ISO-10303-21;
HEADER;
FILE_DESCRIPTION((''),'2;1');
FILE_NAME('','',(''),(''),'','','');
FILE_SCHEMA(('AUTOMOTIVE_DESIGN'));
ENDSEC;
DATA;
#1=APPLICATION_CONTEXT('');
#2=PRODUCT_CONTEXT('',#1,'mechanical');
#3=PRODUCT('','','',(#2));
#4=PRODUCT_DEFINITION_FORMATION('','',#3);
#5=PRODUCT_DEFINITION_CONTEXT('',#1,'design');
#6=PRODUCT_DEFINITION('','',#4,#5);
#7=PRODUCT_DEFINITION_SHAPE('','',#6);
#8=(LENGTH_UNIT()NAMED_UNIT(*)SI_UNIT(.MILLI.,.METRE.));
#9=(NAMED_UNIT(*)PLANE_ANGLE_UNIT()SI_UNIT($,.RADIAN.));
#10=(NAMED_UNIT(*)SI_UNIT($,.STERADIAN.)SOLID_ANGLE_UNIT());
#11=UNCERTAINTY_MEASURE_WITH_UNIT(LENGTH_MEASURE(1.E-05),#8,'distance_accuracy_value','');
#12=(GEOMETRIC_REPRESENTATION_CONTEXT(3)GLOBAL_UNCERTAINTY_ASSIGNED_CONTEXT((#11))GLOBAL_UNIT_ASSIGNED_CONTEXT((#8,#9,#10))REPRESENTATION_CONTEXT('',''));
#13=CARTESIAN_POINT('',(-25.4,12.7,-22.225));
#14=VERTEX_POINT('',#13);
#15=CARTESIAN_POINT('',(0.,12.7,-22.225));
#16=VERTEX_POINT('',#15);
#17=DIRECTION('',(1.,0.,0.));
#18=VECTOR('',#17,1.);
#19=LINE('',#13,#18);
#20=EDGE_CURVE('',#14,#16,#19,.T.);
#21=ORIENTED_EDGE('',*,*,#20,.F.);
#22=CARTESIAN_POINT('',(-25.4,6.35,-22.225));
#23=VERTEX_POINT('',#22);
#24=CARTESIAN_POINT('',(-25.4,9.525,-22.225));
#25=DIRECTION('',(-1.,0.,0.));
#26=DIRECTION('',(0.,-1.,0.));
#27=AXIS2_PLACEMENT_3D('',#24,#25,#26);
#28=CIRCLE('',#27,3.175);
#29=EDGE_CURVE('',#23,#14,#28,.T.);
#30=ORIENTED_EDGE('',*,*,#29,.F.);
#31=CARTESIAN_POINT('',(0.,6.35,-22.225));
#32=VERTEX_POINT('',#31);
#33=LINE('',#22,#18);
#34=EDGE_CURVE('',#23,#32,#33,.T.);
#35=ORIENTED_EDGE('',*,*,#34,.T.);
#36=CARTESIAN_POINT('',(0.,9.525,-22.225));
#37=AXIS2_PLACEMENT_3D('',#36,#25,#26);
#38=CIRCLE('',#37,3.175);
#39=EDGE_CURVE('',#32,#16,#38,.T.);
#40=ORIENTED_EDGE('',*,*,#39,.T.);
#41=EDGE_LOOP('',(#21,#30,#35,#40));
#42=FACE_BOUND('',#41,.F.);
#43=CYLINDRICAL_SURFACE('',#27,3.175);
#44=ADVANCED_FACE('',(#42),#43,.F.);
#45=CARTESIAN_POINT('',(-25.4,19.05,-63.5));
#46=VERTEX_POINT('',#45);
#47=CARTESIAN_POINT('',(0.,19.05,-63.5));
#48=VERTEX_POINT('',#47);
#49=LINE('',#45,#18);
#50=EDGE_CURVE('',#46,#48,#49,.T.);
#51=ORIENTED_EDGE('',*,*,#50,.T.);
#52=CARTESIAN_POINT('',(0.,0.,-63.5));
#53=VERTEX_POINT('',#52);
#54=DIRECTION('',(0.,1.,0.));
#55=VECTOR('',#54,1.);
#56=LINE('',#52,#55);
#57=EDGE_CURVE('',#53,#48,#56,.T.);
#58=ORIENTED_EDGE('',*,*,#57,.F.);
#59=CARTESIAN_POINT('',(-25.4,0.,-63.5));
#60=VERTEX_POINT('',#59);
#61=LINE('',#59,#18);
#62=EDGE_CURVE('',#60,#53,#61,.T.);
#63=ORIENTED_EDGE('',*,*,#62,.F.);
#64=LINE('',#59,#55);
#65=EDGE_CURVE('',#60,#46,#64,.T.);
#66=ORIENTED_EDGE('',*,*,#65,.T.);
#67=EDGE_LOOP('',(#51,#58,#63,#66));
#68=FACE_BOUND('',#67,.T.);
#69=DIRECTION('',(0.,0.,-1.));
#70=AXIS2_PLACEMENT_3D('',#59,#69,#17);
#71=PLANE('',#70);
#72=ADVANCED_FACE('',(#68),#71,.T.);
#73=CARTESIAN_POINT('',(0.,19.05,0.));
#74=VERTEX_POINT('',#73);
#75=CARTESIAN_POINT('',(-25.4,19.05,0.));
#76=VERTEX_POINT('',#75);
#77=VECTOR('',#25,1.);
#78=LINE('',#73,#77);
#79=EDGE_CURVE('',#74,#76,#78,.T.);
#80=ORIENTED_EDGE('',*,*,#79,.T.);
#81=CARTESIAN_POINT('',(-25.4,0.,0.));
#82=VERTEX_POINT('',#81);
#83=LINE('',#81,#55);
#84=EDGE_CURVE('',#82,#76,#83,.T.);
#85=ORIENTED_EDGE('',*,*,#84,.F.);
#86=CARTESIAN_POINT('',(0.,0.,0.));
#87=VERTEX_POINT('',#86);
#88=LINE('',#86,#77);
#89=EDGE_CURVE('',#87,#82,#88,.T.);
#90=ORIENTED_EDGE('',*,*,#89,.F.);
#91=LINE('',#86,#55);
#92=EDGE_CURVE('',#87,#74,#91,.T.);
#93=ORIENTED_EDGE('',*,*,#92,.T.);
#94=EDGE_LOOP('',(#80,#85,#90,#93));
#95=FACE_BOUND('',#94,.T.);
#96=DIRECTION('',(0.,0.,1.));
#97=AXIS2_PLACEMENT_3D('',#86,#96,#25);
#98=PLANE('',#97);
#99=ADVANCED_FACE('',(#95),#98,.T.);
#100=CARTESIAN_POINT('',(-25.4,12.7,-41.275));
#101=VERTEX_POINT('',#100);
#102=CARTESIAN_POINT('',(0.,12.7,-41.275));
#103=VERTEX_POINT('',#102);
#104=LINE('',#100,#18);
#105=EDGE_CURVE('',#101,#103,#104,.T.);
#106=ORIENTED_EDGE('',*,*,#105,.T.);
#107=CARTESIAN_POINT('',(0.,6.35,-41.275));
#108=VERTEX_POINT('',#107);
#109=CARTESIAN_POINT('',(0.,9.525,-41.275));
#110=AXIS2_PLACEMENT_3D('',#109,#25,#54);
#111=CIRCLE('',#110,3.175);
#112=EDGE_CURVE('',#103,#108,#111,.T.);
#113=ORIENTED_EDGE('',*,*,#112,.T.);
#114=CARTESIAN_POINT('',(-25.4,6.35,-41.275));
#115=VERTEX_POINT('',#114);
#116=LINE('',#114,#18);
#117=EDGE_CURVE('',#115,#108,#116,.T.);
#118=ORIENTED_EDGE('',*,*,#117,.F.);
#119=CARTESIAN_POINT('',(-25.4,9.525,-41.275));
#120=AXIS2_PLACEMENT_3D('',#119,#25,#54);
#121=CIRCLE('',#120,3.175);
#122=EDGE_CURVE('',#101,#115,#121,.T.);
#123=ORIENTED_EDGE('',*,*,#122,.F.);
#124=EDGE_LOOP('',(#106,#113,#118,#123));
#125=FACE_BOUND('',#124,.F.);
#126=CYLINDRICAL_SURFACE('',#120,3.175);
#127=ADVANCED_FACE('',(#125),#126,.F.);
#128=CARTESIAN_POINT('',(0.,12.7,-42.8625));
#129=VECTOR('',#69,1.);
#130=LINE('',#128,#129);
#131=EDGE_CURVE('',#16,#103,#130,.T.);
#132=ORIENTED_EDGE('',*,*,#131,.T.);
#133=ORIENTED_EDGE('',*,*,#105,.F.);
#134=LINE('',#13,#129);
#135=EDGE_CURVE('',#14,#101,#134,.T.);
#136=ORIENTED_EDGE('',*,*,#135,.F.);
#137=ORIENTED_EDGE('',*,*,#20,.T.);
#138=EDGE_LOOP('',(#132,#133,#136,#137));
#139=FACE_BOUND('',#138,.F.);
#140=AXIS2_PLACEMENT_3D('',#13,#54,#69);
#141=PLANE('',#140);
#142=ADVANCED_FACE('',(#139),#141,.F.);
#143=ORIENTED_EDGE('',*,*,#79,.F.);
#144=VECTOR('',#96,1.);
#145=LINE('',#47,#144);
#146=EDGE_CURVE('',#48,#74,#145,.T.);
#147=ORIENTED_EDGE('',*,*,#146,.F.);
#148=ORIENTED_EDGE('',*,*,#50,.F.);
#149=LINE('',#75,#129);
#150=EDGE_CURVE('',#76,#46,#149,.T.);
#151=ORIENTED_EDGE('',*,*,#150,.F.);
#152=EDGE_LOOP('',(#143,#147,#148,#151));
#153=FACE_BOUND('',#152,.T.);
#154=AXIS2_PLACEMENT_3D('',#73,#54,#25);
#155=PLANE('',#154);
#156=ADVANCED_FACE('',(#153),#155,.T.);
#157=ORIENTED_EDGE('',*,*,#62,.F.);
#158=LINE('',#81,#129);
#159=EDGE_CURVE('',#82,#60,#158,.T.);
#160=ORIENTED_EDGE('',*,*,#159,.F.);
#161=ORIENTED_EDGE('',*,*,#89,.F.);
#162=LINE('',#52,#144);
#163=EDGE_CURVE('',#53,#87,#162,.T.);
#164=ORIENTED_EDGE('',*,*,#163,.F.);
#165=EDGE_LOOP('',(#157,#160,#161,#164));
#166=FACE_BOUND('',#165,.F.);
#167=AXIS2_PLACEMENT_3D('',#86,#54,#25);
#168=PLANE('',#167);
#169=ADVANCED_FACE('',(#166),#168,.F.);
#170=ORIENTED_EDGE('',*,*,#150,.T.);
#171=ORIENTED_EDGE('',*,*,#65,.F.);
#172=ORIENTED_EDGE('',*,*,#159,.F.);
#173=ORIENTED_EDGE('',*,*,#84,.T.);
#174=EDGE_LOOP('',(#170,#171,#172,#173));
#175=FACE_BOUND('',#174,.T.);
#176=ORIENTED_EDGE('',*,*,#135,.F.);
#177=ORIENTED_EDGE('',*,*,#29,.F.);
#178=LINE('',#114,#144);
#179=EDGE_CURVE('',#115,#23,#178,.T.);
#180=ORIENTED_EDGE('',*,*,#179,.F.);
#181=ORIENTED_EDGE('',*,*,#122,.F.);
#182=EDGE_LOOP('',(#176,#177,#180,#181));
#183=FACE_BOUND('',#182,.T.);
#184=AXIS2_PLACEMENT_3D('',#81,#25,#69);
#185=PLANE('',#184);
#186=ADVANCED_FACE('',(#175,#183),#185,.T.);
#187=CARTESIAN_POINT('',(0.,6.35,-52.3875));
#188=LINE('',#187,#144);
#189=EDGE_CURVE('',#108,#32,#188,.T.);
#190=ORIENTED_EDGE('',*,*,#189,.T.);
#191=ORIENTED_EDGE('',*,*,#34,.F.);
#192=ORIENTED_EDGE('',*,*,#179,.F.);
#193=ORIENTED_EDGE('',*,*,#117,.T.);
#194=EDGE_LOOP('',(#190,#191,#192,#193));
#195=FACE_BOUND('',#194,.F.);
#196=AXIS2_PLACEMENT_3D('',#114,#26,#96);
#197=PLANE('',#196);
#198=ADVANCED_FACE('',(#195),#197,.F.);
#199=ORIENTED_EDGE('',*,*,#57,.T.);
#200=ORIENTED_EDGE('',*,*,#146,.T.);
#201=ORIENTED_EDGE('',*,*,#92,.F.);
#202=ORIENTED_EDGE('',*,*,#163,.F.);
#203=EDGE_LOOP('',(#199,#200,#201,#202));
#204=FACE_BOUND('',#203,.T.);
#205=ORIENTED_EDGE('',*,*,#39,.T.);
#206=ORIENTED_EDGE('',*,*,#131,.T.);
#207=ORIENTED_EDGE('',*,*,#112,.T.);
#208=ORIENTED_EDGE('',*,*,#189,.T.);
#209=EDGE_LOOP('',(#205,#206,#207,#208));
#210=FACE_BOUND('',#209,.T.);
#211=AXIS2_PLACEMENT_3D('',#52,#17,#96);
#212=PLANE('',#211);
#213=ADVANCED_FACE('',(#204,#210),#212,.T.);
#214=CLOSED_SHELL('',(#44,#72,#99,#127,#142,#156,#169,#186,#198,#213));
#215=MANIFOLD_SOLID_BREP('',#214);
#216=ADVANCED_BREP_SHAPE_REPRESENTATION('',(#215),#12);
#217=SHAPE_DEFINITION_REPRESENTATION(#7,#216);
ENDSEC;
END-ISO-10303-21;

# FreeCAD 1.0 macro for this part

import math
import FreeCAD as App
import Part
import Sketcher
from FreeCAD import Vector
Q = App.Units.Quantity

doc = App.newDocument("Part")
body = doc.addObject("PartDesign::Body", "Body")

sketch1 = doc.addObject("Sketcher::SketchObject", "Sketch")
body.addObject(sketch1)
sketch1.AttachmentSupport = (doc.XZ_Plane, [""])
sketch1.MapMode = "FlatFace"
sketch1.addGeometry(Part.LineSegment(Vector(-25, 0, 0), Vector(0, 0, 0)), False)
sketch1.addGeometry(Part.LineSegment(Vector(0, 0, 0), Vector(0, -64, 0)), False)
sketch1.addGeometry(Part.LineSegment(Vector(0, -64, 0), Vector(-25, -64, 0)), False)
sketch1.addGeometry(Part.LineSegment(Vector(-25, -64, 0), Vector(-25, 0, 0)), False)
sketch1.addConstraint(Sketcher.Constraint("Coincident", 0, 2, 1, 1))
sketch1.addConstraint(Sketcher.Constraint("Coincident", 1, 2, 2, 1))
sketch1.addConstraint(Sketcher.Constraint("Coincident", 2, 2, 3, 1))
sketch1.addConstraint(Sketcher.Constraint("Coincident", 3, 2, 0, 1))
sketch1.addConstraint(Sketcher.Constraint("Horizontal", 0))
sketch1.addConstraint(Sketcher.Constraint("Vertical", 1))
sketch1.addConstraint(Sketcher.Constraint("Horizontal", 2))
sketch1.addConstraint(Sketcher.Constraint("Vertical", 3))
sketch1.addConstraint(Sketcher.Constraint("Coincident", 0, 2, -1, 1))
sketch1.addConstraint(Sketcher.Constraint("DistanceX", 0, 1, 0, 2, Q("1 in")))
sketch1.addConstraint(Sketcher.Constraint("DistanceY", 1, 2, 1, 1, Q("2.5 in")))
pad1 = doc.addObject("PartDesign::Pad", "Pad")
body.addObject(pad1)
pad1.Profile = sketch1
pad1.Length = Q("0.75 in")
pad1.Reversed = True

sketch2 = doc.addObject("Sketcher::SketchObject", "Sketch001")
body.addObject(sketch2)
sketch2.AttachmentSupport = (doc.YZ_Plane, [""])
sketch2.MapMode = "FlatFace"
sketch2.AttachmentOffset = App.Placement(Vector(0, 0, -1 * 25.4), App.Rotation())
sketch2.addGeometry(Part.ArcOfCircle(Part.Circle(Vector(9.5, -22.2, 0), Vector(0, 0, 1), 3.2), math.radians(0), math.radians(180)), False)
sketch2.addGeometry(Part.LineSegment(Vector(12.7, -22.2, 0), Vector(12.7, -41.3, 0)), False)
sketch2.addGeometry(Part.ArcOfCircle(Part.Circle(Vector(9.5, -41.3, 0), Vector(0, 0, 1), 3.2), math.radians(180), math.radians(360)), False)
sketch2.addGeometry(Part.LineSegment(Vector(6.3, -41.3, 0), Vector(6.3, -22.2, 0)), False)
sketch2.addConstraint(Sketcher.Constraint("Tangent", 0, 1, 1, 1))
sketch2.addConstraint(Sketcher.Constraint("Tangent", 1, 2, 2, 2))
sketch2.addConstraint(Sketcher.Constraint("Tangent", 2, 1, 3, 1))
sketch2.addConstraint(Sketcher.Constraint("Tangent", 3, 2, 0, 2))
sketch2.addConstraint(Sketcher.Constraint("Vertical", 1))
sketch2.addConstraint(Sketcher.Constraint("Vertical", 3))
sketch2.addConstraint(Sketcher.Constraint("Radius", 0, Q("0.125 in")))
sketch2.addConstraint(Sketcher.Constraint("DistanceY", 1, 2, 1, 1, Q("0.75 in")))
sketch2.addConstraint(Sketcher.Constraint("DistanceX", -1, 1, 2, 1, Q("0.25 in")))
sketch2.addConstraint(Sketcher.Constraint("DistanceY", 0, 3, -1, 1, Q("0.875 in")))
pocket1 = doc.addObject("PartDesign::Pocket", "Pocket")
body.addObject(pocket1)
pocket1.Profile = sketch2
pocket1.Type = "UpToFirst"
pocket1.Reversed = True

doc.recompute()
